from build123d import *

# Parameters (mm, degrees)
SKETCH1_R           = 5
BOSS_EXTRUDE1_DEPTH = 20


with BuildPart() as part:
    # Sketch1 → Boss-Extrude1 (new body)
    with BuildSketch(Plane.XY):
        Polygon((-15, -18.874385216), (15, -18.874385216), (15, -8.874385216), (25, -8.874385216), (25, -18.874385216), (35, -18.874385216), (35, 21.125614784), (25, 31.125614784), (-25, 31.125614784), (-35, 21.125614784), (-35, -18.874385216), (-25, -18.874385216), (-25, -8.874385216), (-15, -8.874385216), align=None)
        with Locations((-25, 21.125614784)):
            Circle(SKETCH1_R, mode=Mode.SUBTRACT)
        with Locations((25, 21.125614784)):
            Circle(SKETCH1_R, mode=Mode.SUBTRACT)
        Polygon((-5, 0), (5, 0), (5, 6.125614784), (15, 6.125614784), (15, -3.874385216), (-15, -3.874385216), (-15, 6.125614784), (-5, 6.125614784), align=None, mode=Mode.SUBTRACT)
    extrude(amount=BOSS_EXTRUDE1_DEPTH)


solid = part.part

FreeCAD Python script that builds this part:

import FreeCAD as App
import Part
import Sketcher

V = App.Vector
Q = App.Units.Quantity


def add_polygon(sketch, points):
    """Adds a closed chain of lines whose ends are joined by coincident constraints."""
    first, n = sketch.GeometryCount, len(points)
    for a, b in zip(points, points[1:] + points[:1]):
        sketch.addGeometry(Part.LineSegment(App.Vector(*a, 0), App.Vector(*b, 0)), False)
    for i in range(n):
        sketch.addConstraint(Sketcher.Constraint("Coincident", first + i, 2, first + (i + 1) % n, 1))

doc = App.newDocument("Part")
body = doc.addObject("PartDesign::Body", "Body")

# Sketch on XY plane
sketch1 = body.newObject("Sketcher::SketchObject", "Sketch")
sketch1.AttachmentSupport = (doc.getObject("XY_Plane"), [""])
sketch1.MapMode = "FlatFace"
add_polygon(sketch1, [(-15, -19), (15, -19), (15, -9), (25, -9), (25, -19), (35, -19), (35, 21), (25, 31), (-25, 31), (-35, 21), (-35, -19), (-25, -19), (-25, -9), (-15, -9)])  # lines 0-13
add_polygon(sketch1, [(-5, 6), (-5, 0), (5, 0), (5, 6), (15, 6), (15, -4), (-15, -4), (-15, 6)])  # lines 14-21
sketch1.addGeometry(Part.Circle(V(-25, 21, 0), V(0, 0, 1), 5), False)  # 22
sketch1.addGeometry(Part.Circle(V(25, 21, 0), V(0, 0, 1), 5), False)  # 23
sketch1.addConstraint([
    Sketcher.Constraint("Horizontal", 0),
    Sketcher.Constraint("Vertical", 1),
    Sketcher.Constraint("Horizontal", 2),
    Sketcher.Constraint("Vertical", 3),
    Sketcher.Constraint("Horizontal", 4),
    Sketcher.Constraint("Vertical", 5),
    Sketcher.Constraint("Horizontal", 7),
    Sketcher.Constraint("Vertical", 9),
    Sketcher.Constraint("Horizontal", 10),
    Sketcher.Constraint("Vertical", 11),
    Sketcher.Constraint("Horizontal", 12),
    Sketcher.Constraint("Vertical", 13),
    Sketcher.Constraint("Vertical", 14),
    Sketcher.Constraint("Horizontal", 15),
    Sketcher.Constraint("Vertical", 16),
    Sketcher.Constraint("Horizontal", 17),
    Sketcher.Constraint("Vertical", 18),
    Sketcher.Constraint("Horizontal", 19),
    Sketcher.Constraint("Vertical", 20),
    Sketcher.Constraint("Horizontal", 21),
    Sketcher.Constraint("Equal", 22, 23),
    Sketcher.Constraint("Symmetric", 14, 2, 15, 2, -1, 1),
    Sketcher.Constraint("Symmetric", 22, 3, 23, 3, -2),
    Sketcher.Constraint("Symmetric", 5, 2, 8, 2, -2),
    Sketcher.Constraint("Symmetric", 3, 2, 10, 2, -2),
    Sketcher.Constraint("Symmetric", 1, 2, 12, 2, -2),
    Sketcher.Constraint("Symmetric", 17, 2, 20, 2, -2),
    Sketcher.Constraint("Perpendicular", 6, 8),
    Sketcher.Constraint("Horizontal", 0, 2, 3, 2),
    Sketcher.Constraint("Horizontal", 23, 3, 5, 2),
    Sketcher.Constraint("Vertical", 23, 3, 2, 2),
    Sketcher.Constraint("Vertical", 3, 2, 6, 2),
    Sketcher.Constraint("Vertical", 22, 3, 7, 2),
    Sketcher.Constraint("Vertical", 1, 2, 17, 2),
    Sketcher.Constraint("Equal", 2, 4),
    Sketcher.Constraint("Equal", 12, 15),
    Sketcher.Constraint("Equal", 15, 17),
    Sketcher.Constraint("Equal", 21, 1),
    Sketcher.Constraint("Equal", 13, 18),
    Sketcher.Constraint("Diameter", 22, Q("10 mm")),
    Sketcher.Constraint("DistanceX", 0, 1, 0, 2, Q("30 mm")),
    Sketcher.Constraint("DistanceY", 5, 1, 5, 2, Q("40 mm")),
    Sketcher.Constraint("DistanceY", 1, 2, 16, 2, Q("15 mm")),
    Sketcher.Constraint("DistanceY", 14, 2, 14, 1, Q("6.125615 mm")),
])
pad1 = body.newObject("PartDesign::Pad", "Pad")
pad1.Profile = sketch1
pad1.Length = 20

doc.recompute()
